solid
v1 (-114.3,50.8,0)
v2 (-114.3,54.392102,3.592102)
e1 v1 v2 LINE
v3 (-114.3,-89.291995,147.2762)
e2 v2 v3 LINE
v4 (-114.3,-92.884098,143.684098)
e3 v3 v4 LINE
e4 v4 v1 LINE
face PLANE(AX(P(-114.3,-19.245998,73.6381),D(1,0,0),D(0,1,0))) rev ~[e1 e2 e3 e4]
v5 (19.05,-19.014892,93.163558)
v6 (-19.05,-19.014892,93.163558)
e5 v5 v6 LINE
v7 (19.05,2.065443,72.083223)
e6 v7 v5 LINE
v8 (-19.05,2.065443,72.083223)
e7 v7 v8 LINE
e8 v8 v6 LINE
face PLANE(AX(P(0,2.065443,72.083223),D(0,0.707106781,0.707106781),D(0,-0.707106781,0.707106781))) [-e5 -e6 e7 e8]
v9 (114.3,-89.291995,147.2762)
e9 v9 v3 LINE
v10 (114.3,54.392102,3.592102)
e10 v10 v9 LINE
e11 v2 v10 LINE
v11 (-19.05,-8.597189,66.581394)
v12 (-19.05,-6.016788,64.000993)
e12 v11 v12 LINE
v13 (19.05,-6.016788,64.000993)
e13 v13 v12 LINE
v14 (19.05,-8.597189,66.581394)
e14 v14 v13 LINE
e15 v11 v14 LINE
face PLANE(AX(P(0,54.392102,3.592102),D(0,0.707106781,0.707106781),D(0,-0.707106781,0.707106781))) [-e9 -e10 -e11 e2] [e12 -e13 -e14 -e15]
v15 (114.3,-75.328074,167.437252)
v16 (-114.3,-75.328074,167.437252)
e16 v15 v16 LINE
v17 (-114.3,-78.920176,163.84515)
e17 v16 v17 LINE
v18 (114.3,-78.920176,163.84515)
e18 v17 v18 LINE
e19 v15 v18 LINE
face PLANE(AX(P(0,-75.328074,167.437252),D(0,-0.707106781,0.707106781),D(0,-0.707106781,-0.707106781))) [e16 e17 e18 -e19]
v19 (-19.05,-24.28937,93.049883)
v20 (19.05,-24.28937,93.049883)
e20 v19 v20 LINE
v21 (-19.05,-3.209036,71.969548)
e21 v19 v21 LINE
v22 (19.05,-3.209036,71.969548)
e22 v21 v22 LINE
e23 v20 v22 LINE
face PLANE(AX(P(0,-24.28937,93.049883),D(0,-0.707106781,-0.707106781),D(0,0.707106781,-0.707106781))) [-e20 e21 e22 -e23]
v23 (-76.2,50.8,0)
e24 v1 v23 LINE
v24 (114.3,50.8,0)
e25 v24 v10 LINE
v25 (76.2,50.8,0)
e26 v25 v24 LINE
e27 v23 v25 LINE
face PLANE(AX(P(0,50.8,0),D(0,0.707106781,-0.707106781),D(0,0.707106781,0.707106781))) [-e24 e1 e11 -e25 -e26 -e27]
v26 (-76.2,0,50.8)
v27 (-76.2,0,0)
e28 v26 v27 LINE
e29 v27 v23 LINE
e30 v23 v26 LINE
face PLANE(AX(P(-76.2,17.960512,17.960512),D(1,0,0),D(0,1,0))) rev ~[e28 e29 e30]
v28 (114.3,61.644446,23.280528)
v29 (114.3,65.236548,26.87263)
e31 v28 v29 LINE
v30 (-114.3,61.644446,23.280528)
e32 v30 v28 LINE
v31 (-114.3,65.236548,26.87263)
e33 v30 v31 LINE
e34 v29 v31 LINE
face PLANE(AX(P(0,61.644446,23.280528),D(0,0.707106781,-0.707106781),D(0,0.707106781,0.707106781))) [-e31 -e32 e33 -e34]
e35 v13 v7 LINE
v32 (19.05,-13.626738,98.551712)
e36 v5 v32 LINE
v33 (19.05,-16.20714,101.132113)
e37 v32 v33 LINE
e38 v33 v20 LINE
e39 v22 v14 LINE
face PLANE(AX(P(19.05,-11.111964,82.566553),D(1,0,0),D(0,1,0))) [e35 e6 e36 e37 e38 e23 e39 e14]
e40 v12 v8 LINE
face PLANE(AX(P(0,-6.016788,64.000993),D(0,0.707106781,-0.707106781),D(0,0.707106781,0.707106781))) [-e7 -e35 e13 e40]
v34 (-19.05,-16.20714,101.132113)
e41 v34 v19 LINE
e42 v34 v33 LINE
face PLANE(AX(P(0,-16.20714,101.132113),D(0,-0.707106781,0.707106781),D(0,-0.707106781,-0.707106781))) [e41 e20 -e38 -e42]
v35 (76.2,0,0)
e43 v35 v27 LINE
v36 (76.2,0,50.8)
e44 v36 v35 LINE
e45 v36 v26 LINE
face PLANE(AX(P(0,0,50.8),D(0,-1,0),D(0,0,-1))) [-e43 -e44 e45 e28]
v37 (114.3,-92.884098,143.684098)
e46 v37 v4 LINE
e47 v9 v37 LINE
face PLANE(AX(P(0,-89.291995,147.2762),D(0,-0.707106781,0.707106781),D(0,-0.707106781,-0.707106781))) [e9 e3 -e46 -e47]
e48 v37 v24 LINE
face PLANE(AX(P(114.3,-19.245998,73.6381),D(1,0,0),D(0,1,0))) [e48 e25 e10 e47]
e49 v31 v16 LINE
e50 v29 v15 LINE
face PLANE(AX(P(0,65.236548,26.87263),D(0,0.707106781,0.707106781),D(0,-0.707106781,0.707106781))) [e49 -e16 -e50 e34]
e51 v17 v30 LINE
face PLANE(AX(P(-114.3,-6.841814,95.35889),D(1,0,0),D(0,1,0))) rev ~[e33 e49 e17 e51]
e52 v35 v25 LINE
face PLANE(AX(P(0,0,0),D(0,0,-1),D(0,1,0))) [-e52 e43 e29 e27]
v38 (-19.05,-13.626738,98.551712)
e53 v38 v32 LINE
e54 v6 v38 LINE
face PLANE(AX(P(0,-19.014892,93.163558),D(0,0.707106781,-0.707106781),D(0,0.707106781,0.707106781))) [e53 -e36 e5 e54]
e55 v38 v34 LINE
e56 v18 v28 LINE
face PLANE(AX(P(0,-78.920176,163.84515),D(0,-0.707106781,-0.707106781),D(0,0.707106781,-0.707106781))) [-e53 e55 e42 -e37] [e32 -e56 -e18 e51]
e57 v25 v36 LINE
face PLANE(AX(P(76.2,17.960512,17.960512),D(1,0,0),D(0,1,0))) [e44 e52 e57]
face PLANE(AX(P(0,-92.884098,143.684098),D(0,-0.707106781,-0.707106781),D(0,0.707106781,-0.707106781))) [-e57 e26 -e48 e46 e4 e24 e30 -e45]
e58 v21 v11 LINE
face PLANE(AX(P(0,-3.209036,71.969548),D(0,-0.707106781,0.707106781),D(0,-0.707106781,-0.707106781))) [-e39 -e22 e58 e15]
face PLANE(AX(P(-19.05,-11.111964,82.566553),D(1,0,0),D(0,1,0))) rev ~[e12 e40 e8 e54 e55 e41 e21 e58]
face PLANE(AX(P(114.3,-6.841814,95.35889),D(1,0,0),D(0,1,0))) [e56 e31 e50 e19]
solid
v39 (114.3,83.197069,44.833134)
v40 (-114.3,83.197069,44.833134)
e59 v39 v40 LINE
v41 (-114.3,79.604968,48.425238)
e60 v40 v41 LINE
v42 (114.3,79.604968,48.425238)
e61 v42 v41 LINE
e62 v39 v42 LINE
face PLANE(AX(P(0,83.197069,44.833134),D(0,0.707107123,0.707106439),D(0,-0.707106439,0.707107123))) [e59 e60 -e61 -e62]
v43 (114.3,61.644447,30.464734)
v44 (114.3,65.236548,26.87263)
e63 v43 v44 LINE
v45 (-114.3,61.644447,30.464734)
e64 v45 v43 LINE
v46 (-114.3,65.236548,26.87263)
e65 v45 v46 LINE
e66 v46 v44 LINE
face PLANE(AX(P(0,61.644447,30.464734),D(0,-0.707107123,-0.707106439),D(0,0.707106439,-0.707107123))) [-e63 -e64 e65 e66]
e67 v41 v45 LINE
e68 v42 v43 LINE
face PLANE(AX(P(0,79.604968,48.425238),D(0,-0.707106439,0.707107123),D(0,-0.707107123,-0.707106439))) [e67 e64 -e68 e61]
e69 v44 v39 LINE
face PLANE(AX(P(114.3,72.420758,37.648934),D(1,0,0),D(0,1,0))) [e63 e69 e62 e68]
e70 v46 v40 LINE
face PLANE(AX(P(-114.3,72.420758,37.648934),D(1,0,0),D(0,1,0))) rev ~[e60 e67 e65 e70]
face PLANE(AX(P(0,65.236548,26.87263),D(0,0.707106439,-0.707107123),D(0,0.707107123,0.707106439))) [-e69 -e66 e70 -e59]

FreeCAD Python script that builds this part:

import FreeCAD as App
import Part
import Sketcher

V = App.Vector
Q = App.Units.Quantity

doc = App.newDocument("Part")
body = doc.addObject("PartDesign::Body", "Body")

# Sketch on YZ plane
sketch1 = doc.addObject("Sketcher::SketchObject", "Sketch")
body.addObject(sketch1)
sketch1.AttachmentSupport = (doc.YZ_Plane, [""])
sketch1.MapMode = "FlatFace"
sketch1.addGeometry([
    Part.LineSegment(V(0, 0, 0), V(50.8, 0, 0)),
    Part.LineSegment(V(50.8, 0, 0), V(0, 50.8, 0)),
    Part.LineSegment(V(0, 50.8, 0), V(0, 0, 0)),
], False)
sketch1.addConstraint([
    Sketcher.Constraint("Coincident", 0, 2, 1, 1),
    Sketcher.Constraint("Coincident", 1, 2, 2, 1),
    Sketcher.Constraint("Coincident", 2, 2, 0, 1),
    Sketcher.Constraint("Horizontal", 0),
    Sketcher.Constraint("Vertical", 2),
    Sketcher.Constraint("Coincident", 2, 2, -1, 1),
    Sketcher.Constraint("Equal", 0, 2),
    Sketcher.Constraint("DistanceX", 0, 1, 0, 2, Q("2 in")),
])
pad1 = doc.addObject("PartDesign::Pad", "Pad")
body.addObject(pad1)
pad1.Profile = sketch1
pad1.Length = Q("6 in")
pad1.Midplane = True

# Sketch on YZ plane
sketch2 = doc.addObject("Sketcher::SketchObject", "Sketch001")
body.addObject(sketch2)
sketch2.AttachmentSupport = (doc.YZ_Plane, [""])
sketch2.MapMode = "FlatFace"
sketch2.addGeometry([
    Part.LineSegment(V(-92.884098, 143.684098, 0), V(50.8, 0, 0)),
    Part.LineSegment(V(50.8, 0, 0), V(54.392102, 3.592102, 0)),
    Part.LineSegment(V(54.392102, 3.592102, 0), V(-89.291995, 147.2762, 0)),
    Part.LineSegment(V(-89.291995, 147.2762, 0), V(-92.884098, 143.684098, 0)),
], False)
sketch2.addConstraint([
    Sketcher.Constraint("Coincident", 0, 2, 1, 1),
    Sketcher.Constraint("Coincident", 1, 2, 2, 1),
    Sketcher.Constraint("Coincident", 2, 2, 3, 1),
    Sketcher.Constraint("Coincident", 3, 2, 0, 1),
    Sketcher.Constraint("PointOnObject", 0, 2, -1),
    Sketcher.Constraint("Perpendicular", 0, 1),
    Sketcher.Constraint("Perpendicular", 1, 2),
    Sketcher.Constraint("Perpendicular", 2, 3),
    Sketcher.Constraint("Distance", 0, Q("8 in")),
    Sketcher.Constraint("DistanceX", -1, 1, 0, 2, Q("2 in")),
    Sketcher.Constraint("Angle", 0, Q("-45 deg")),
    Sketcher.Constraint("Distance", 1, Q("0.2 in")),
])
pad2 = doc.addObject("PartDesign::Pad", "Pad001")
body.addObject(pad2)
pad2.Profile = sketch2
pad2.Length = Q("9 in")
pad2.Midplane = True

# Sketch on YZ plane
sketch3 = doc.addObject("Sketcher::SketchObject", "Sketch002")
body.addObject(sketch3)
sketch3.AttachmentSupport = (doc.YZ_Plane, [""])
sketch3.MapMode = "FlatFace"
sketch3.addGeometry([
    Part.LineSegment(V(-19.014892, 93.163558, 0), V(-13.626738, 98.551712, 0)),  # 0
    Part.LineSegment(V(-13.626738, 98.551712, 0), V(-16.20714, 101.132113, 0)),  # 1
    Part.LineSegment(V(-16.20714, 101.132113, 0), V(-24.28937, 93.049883, 0)),  # 2
    Part.LineSegment(V(-24.28937, 93.049883, 0), V(-3.209036, 71.969548, 0)),  # 3
    Part.LineSegment(V(-3.209036, 71.969548, 0), V(-8.597189, 66.581394, 0)),  # 4
    Part.LineSegment(V(-8.597189, 66.581394, 0), V(-6.016788, 64.000993, 0)),  # 5
    Part.LineSegment(V(-6.016788, 64.000993, 0), V(2.065443, 72.083223, 0)),  # 6
    Part.LineSegment(V(2.065443, 72.083223, 0), V(-19.014892, 93.163558, 0)),  # 7
], False)
sketch3.addConstraint([
    Sketcher.Constraint("Coincident", 0, 2, 1, 1),
    Sketcher.Constraint("Coincident", 1, 2, 2, 1),
    Sketcher.Constraint("Coincident", 2, 2, 3, 1),
    Sketcher.Constraint("Coincident", 3, 2, 4, 1),
    Sketcher.Constraint("Coincident", 4, 2, 5, 1),
    Sketcher.Constraint("Coincident", 5, 2, 6, 1),
    Sketcher.Constraint("Coincident", 6, 2, 7, 1),
    Sketcher.Constraint("Coincident", 7, 2, 0, 1),
    Sketcher.Constraint("Perpendicular", 0, 1),
    Sketcher.Constraint("Perpendicular", 1, 2),
    Sketcher.Constraint("Perpendicular", 2, 3),
    Sketcher.Constraint("Perpendicular", 3, 4),
    Sketcher.Constraint("Perpendicular", 4, 5),
    Sketcher.Constraint("Perpendicular", 5, 6),
    Sketcher.Constraint("Perpendicular", 6, 7),
    Sketcher.Constraint("Equal", 0, 4),
    Sketcher.Constraint("Equal", 1, 5),
    Sketcher.Constraint("Angle", 0, Q("45 deg")),
    Sketcher.Constraint("Distance", 0, Q("0.3 in")),
    Sketcher.Constraint("Distance", 2, Q("0.45 in")),
    Sketcher.Constraint("DistanceX", 1, 2, 0, 2, Q("2.580402 mm")),
    Sketcher.Constraint("DistanceX", 0, 2, -1, 1, Q("13.626738 mm")),
    Sketcher.Constraint("DistanceY", -1, 1, 0, 2, Q("98.551712 mm")),
    Sketcher.Constraint("DistanceX", 4, 2, -1, 1, Q("8.597189 mm")),
])
pad3 = doc.addObject("PartDesign::Pad", "Pad002")
body.addObject(pad3)
pad3.Profile = sketch3
pad3.Length = Q("1.5 in")
pad3.Midplane = True

# Sketch on YZ plane
sketch4 = doc.addObject("Sketcher::SketchObject", "Sketch003")
body.addObject(sketch4)
sketch4.AttachmentSupport = (doc.YZ_Plane, [""])
sketch4.MapMode = "FlatFace"
sketch4.addGeometry([
    Part.LineSegment(V(-75.328074, 167.437252, 0), V(-78.920176, 163.84515, 0)),
    Part.LineSegment(V(-78.920176, 163.84515, 0), V(61.644446, 23.280528, 0)),
    Part.LineSegment(V(61.644446, 23.280528, 0), V(65.236548, 26.87263, 0)),
    Part.LineSegment(V(65.236548, 26.87263, 0), V(-75.328074, 167.437252, 0)),
], False)
sketch4.addConstraint([
    Sketcher.Constraint("Coincident", 0, 2, 1, 1),
    Sketcher.Constraint("Coincident", 1, 2, 2, 1),
    Sketcher.Constraint("Coincident", 2, 2, 3, 1),
    Sketcher.Constraint("Coincident", 3, 2, 0, 1),
    Sketcher.Constraint("Perpendicular", 0, 1),
    Sketcher.Constraint("Perpendicular", 1, 2),
    Sketcher.Constraint("Perpendicular", 2, 3),
    Sketcher.Constraint("Angle", 0, Q("-135 deg")),
    Sketcher.Constraint("Distance", 0, Q("0.2 in")),
    Sketcher.Constraint("DistanceY", -1, 1, 0, 2, Q("163.84515 mm")),
    Sketcher.Constraint("DistanceY", -1, 1, 2, 2, Q("26.87263 mm")),
    Sketcher.Constraint("DistanceX", 0, 2, -1, 1, Q("78.920176 mm")),
])
pad4 = doc.addObject("PartDesign::Pad", "Pad003")
body.addObject(pad4)
pad4.Profile = sketch4
pad4.Length = Q("9 in")
pad4.Midplane = True
body2 = doc.addObject("PartDesign::Body", "Body001")

# Sketch on YZ plane
sketch5 = doc.addObject("Sketcher::SketchObject", "Sketch004")
body2.addObject(sketch5)
sketch5.AttachmentSupport = (doc.getObject("YZ_Plane001"), [""])
sketch5.MapMode = "FlatFace"
sketch5.addGeometry([
    Part.LineSegment(V(79.604968, 48.425238, 0), V(61.644447, 30.464734, 0)),
    Part.LineSegment(V(61.644447, 30.464734, 0), V(65.236548, 26.87263, 0)),
    Part.LineSegment(V(65.236548, 26.87263, 0), V(83.197069, 44.833134, 0)),
    Part.LineSegment(V(83.197069, 44.833134, 0), V(79.604968, 48.425238, 0)),
], False)
sketch5.addConstraint([
    Sketcher.Constraint("Coincident", 0, 2, 1, 1),
    Sketcher.Constraint("Coincident", 1, 2, 2, 1),
    Sketcher.Constraint("Coincident", 2, 2, 3, 1),
    Sketcher.Constraint("Coincident", 3, 2, 0, 1),
    Sketcher.Constraint("Perpendicular", 0, 1),
    Sketcher.Constraint("Perpendicular", 1, 2),
    Sketcher.Constraint("Perpendicular", 2, 3),
    Sketcher.Constraint("Distance", 0, Q("1 in")),
    Sketcher.Constraint("Distance", 1, Q("0.2 in")),
    Sketcher.Constraint("DistanceX", 0, 2, 1, 2, Q("3.592101 mm")),
    Sketcher.Constraint("DistanceY", -1, 1, 1, 2, Q("26.87263 mm")),
    Sketcher.Constraint("DistanceX", -1, 1, 2, 2, Q("83.197069 mm")),
])
pad5 = doc.addObject("PartDesign::Pad", "Pad004")
body2.addObject(pad5)
pad5.Profile = sketch5
pad5.Length = Q("9 in")
pad5.Midplane = True

doc.recompute()
